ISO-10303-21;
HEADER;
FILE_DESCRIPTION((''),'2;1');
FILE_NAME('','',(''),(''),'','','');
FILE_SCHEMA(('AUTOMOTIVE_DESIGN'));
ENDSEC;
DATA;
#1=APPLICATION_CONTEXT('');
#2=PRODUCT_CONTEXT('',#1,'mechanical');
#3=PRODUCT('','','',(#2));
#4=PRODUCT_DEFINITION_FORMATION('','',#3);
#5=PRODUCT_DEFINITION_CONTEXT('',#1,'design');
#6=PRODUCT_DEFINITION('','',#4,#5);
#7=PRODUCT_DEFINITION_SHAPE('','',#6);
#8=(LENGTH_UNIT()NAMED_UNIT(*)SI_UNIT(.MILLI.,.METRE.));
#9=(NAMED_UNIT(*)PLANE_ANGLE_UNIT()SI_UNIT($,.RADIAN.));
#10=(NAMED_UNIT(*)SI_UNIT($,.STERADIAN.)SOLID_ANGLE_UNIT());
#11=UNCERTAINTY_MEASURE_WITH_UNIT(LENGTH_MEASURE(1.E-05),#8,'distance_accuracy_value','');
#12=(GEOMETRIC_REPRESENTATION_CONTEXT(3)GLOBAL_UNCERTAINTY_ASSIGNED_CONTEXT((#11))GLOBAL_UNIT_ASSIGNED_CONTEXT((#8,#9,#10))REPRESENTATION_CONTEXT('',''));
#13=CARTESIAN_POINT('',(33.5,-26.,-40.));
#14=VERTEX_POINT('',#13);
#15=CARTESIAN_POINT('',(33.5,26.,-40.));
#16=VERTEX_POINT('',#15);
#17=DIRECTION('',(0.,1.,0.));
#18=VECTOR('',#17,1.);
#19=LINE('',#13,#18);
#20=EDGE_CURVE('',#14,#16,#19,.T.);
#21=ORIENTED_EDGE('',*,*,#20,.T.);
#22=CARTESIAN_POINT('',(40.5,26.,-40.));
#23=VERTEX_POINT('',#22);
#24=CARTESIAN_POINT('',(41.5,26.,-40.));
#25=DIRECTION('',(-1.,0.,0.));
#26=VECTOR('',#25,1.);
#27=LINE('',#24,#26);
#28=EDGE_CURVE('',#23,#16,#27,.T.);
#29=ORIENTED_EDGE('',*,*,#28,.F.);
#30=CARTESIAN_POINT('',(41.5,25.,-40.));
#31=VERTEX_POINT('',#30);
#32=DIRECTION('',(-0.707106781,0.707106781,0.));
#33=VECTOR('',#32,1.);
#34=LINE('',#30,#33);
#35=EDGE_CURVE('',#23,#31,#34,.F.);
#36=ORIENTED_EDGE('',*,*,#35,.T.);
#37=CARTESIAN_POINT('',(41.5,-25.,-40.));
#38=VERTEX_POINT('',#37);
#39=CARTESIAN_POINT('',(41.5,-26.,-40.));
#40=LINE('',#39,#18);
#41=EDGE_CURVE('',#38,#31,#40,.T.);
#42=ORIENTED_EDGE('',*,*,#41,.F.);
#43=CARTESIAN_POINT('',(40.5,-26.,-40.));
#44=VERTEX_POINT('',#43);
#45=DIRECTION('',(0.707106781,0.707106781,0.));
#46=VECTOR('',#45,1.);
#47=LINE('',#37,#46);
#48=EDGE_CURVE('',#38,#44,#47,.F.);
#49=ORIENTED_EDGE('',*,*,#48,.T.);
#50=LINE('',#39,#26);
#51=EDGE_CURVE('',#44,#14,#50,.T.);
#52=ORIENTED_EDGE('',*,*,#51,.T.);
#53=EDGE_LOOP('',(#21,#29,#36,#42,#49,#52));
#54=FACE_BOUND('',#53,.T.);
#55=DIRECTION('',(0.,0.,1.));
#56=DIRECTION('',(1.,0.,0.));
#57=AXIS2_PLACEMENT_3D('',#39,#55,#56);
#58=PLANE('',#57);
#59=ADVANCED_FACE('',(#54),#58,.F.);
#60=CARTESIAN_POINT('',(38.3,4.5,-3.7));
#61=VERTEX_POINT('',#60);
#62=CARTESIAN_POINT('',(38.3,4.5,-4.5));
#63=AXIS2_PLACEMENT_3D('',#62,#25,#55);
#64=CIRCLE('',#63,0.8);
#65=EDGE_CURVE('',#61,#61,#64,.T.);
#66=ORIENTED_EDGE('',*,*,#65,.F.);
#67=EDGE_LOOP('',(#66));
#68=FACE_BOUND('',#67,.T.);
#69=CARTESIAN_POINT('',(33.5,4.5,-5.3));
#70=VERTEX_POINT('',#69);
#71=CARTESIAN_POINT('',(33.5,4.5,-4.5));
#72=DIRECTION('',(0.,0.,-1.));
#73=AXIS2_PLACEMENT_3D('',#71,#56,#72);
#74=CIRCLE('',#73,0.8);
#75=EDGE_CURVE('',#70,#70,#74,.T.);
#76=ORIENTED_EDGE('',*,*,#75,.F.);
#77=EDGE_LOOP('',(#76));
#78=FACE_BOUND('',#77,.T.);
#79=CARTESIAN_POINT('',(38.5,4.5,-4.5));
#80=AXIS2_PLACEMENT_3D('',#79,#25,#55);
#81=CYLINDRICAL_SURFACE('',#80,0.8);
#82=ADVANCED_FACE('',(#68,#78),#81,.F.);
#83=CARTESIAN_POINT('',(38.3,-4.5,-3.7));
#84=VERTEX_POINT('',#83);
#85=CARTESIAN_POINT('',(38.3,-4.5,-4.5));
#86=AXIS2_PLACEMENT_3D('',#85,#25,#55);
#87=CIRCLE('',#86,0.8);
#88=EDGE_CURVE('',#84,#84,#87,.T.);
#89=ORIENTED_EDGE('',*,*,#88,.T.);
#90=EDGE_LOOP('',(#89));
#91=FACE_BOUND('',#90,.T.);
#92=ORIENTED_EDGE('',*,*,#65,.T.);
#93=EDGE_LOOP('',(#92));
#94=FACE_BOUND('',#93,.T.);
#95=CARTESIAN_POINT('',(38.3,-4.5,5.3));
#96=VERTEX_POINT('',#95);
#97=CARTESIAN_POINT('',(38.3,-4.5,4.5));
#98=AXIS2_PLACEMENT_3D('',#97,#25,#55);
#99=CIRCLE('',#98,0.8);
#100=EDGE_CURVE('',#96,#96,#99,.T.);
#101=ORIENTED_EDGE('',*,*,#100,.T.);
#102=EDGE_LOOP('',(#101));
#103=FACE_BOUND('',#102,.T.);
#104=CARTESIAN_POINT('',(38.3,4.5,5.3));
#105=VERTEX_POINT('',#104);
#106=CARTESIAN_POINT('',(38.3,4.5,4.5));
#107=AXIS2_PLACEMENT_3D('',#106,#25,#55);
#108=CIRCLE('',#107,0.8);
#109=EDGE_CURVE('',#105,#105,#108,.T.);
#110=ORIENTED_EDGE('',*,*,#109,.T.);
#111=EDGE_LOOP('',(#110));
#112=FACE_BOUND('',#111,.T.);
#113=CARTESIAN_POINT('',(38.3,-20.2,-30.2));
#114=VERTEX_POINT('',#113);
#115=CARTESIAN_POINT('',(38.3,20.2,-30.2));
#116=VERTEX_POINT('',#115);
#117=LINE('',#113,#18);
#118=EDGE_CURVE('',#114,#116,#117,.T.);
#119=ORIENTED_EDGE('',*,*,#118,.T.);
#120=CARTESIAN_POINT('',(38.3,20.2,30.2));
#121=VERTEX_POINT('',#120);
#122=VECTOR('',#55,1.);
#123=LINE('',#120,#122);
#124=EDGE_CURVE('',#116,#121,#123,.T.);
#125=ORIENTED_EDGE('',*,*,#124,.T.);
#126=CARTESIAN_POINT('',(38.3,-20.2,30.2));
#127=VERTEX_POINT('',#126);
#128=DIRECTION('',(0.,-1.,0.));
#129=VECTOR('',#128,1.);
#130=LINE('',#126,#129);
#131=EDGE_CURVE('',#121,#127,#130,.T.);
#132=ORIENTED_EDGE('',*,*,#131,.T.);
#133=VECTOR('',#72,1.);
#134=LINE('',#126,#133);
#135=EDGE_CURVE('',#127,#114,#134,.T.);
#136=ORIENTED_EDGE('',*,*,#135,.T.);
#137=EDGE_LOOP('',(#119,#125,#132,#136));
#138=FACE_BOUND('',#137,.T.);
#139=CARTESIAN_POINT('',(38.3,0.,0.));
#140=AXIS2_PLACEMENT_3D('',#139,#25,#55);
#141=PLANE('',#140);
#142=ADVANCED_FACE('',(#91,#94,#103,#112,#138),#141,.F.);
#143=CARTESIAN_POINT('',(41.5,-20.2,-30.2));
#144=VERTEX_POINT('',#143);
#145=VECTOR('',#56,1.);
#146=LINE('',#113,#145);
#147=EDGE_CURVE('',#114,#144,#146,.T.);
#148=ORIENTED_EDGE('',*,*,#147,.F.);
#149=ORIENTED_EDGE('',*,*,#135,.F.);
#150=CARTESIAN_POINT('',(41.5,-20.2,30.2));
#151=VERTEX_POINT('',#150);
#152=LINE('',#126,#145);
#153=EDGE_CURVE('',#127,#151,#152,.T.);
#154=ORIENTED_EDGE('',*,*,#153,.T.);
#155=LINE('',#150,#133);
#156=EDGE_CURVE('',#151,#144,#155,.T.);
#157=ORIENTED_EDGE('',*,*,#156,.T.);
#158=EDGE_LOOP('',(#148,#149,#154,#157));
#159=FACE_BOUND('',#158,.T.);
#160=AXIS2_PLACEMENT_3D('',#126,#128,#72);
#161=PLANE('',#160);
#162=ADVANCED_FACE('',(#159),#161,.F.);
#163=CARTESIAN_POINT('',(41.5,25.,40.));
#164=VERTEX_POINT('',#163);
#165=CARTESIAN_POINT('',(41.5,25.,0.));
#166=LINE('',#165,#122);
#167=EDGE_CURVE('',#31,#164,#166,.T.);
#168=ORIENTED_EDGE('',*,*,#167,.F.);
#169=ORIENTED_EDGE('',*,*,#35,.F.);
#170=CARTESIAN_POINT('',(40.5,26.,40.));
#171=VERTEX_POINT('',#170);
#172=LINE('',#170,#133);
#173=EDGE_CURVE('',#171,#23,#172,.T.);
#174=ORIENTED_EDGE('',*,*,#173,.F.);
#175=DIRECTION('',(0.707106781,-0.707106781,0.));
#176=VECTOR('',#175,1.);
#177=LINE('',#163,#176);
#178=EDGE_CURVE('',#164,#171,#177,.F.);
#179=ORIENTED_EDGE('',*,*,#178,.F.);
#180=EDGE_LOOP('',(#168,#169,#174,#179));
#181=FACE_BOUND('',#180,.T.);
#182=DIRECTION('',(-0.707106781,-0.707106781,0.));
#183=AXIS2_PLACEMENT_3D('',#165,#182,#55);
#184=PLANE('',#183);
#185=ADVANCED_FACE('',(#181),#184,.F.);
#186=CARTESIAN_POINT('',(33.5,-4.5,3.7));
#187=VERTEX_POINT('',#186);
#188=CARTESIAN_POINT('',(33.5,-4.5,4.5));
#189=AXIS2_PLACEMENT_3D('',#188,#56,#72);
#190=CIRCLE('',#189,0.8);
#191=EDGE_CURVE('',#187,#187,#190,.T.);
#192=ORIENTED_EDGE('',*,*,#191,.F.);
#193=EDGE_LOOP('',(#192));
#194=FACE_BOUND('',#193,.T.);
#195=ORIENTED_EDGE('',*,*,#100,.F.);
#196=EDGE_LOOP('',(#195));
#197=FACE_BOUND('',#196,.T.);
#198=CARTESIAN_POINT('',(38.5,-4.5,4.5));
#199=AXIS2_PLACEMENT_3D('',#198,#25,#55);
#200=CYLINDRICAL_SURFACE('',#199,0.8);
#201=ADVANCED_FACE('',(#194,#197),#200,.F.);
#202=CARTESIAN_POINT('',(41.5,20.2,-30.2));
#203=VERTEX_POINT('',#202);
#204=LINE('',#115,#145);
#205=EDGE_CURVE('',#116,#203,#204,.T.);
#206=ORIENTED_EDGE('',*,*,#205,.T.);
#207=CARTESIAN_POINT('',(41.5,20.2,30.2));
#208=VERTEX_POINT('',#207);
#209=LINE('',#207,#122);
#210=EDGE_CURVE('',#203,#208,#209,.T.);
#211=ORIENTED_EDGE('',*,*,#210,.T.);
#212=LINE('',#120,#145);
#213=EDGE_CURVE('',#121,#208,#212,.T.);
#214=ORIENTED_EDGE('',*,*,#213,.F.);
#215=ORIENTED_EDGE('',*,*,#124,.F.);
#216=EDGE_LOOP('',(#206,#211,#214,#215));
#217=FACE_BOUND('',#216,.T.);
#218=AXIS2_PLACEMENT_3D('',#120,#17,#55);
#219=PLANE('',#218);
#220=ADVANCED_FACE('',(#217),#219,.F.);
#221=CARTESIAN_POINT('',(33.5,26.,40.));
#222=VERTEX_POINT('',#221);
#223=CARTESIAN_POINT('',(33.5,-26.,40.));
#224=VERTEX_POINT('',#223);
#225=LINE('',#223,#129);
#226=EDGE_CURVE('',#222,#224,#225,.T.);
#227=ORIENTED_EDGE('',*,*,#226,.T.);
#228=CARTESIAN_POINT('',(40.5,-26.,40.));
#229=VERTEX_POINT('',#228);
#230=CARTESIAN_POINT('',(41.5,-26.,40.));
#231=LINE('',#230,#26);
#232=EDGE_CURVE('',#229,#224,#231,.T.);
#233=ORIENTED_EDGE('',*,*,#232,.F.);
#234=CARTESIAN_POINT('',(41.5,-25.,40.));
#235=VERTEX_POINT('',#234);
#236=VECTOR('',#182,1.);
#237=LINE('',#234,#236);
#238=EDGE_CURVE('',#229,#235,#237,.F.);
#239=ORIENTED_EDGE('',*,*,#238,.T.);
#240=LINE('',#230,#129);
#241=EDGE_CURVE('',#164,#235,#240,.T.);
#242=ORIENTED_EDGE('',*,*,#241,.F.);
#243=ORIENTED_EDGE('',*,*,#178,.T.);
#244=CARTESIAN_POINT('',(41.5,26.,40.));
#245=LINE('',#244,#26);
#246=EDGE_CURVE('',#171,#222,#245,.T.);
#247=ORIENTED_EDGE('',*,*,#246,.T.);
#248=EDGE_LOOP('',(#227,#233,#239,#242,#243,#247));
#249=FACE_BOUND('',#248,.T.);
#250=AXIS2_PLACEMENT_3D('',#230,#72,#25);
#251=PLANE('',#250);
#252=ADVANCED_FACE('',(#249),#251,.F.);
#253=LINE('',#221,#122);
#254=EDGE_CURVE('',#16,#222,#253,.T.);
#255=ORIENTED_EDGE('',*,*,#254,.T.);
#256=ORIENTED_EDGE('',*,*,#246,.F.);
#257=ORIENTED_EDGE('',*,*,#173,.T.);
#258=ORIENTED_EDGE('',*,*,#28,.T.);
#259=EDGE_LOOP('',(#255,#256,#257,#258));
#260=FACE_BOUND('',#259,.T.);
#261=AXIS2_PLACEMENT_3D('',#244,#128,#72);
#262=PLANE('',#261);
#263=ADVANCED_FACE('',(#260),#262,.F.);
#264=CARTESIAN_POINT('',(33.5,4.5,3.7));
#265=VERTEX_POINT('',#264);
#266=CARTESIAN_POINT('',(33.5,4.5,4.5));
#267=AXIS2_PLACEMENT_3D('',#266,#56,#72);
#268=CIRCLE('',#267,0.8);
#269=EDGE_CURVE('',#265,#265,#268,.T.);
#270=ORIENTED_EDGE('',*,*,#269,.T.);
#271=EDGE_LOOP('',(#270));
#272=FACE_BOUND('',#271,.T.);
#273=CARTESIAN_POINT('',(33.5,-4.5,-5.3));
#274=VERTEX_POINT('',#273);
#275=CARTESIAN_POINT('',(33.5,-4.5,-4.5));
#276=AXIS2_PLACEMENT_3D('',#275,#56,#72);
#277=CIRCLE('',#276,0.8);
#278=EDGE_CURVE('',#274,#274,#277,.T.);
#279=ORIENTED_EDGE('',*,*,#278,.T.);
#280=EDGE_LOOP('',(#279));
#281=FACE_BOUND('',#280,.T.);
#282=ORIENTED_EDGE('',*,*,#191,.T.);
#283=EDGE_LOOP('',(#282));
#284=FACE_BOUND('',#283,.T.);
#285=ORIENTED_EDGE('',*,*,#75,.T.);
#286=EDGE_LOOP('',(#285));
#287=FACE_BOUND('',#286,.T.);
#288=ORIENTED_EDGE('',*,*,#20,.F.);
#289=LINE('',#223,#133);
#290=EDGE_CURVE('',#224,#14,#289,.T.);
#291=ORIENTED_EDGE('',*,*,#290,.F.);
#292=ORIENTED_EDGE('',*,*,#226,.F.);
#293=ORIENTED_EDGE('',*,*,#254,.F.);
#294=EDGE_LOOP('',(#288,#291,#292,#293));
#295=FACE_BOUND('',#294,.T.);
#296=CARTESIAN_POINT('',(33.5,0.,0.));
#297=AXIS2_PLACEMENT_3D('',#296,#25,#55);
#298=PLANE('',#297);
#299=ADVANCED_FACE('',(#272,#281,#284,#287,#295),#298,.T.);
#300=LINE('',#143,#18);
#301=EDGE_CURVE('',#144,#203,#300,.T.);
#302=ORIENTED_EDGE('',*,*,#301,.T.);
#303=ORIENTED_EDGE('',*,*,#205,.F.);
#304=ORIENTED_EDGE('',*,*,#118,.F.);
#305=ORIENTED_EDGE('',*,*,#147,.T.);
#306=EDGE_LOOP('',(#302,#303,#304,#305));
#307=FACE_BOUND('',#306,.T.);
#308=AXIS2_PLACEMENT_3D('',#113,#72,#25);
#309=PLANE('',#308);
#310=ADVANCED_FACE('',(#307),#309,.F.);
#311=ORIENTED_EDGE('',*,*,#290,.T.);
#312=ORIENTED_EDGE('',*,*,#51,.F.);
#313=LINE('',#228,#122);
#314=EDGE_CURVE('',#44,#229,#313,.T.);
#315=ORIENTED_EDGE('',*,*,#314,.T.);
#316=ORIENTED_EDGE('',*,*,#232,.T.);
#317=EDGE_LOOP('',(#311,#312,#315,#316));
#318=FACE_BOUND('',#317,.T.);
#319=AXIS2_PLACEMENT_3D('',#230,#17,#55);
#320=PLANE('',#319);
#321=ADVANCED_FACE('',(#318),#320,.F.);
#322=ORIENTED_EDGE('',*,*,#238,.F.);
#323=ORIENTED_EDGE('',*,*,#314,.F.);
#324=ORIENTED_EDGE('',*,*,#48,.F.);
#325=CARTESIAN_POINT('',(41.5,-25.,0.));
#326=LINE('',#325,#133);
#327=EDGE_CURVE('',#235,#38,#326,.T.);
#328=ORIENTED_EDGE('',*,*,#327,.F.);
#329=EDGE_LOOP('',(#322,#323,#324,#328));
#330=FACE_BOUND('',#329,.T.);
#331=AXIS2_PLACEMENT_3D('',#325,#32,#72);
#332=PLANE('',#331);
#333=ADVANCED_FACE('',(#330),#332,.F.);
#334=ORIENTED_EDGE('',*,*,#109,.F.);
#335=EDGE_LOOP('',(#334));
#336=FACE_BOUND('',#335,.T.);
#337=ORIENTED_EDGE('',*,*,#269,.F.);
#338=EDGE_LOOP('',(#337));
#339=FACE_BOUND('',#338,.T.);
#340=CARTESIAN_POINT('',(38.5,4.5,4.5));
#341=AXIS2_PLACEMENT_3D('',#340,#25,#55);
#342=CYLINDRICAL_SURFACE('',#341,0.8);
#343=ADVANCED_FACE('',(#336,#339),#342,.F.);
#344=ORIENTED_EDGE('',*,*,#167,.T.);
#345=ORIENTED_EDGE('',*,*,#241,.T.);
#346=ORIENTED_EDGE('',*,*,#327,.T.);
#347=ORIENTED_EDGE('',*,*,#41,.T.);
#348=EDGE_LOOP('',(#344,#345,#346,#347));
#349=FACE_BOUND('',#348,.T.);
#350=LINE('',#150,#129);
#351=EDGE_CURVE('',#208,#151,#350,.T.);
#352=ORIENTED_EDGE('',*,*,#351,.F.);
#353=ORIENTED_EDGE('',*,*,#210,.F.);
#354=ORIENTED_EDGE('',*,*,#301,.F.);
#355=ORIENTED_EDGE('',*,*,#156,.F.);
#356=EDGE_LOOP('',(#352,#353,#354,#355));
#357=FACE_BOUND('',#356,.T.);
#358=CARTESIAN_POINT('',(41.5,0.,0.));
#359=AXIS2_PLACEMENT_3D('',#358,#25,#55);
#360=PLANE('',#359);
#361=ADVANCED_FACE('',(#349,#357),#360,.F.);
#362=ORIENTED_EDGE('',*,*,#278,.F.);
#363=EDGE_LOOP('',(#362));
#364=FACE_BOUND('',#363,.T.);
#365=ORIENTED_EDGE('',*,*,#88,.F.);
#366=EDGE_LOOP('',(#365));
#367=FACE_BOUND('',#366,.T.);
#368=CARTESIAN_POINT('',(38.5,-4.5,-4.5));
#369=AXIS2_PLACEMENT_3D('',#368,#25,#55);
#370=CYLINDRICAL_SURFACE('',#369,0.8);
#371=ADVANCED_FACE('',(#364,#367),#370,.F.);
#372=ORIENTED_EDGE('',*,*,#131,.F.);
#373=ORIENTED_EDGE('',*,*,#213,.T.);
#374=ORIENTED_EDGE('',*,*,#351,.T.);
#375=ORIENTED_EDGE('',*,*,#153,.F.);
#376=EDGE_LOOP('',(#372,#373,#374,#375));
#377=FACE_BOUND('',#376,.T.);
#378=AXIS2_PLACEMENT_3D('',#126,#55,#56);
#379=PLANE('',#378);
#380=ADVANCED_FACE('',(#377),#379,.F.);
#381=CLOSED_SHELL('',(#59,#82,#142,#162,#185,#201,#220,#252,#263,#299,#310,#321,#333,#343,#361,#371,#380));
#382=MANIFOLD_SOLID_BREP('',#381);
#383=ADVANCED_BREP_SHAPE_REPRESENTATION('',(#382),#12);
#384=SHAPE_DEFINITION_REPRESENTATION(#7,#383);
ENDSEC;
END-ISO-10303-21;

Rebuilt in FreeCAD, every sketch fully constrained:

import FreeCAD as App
import Part
import Sketcher
from FreeCAD import Vector
Q = App.Units.Quantity


def edges_at(feature, points):
    """Names of the edges that pass closest to the given points."""
    edges = feature.Shape.Edges
    near = lambda p: min(range(len(edges)), key=lambda i: edges[i].distToShape(Part.Vertex(*p))[0])
    return sorted({f"Edge{near(p) + 1}" for p in points})

doc = App.newDocument("Part")
body = doc.addObject("PartDesign::Body", "Body")

# Sketch on YZ plane
sketch1 = body.newObject("Sketcher::SketchObject", "Sketch")
sketch1.AttachmentSupport = (doc.getObject("YZ_Plane"), [""])
sketch1.MapMode = "FlatFace"
sketch1.AttachmentOffset = App.Placement(Vector(0, 0, 33.5), App.Rotation())
sketch1.addGeometry(Part.LineSegment(Vector(26, 40, 0), Vector(-26, 40, 0)), False)
sketch1.addGeometry(Part.LineSegment(Vector(-26, 40, 0), Vector(-26, -40, 0)), False)
sketch1.addGeometry(Part.LineSegment(Vector(-26, -40, 0), Vector(26, -40, 0)), False)
sketch1.addGeometry(Part.LineSegment(Vector(26, -40, 0), Vector(26, 40, 0)), False)
sketch1.addConstraint(Sketcher.Constraint("Coincident", 0, 2, 1, 1))
sketch1.addConstraint(Sketcher.Constraint("Coincident", 1, 2, 2, 1))
sketch1.addConstraint(Sketcher.Constraint("Coincident", 2, 2, 3, 1))
sketch1.addConstraint(Sketcher.Constraint("Coincident", 3, 2, 0, 1))
sketch1.addConstraint(Sketcher.Constraint("Horizontal", 0))
sketch1.addConstraint(Sketcher.Constraint("Vertical", 1))
sketch1.addConstraint(Sketcher.Constraint("Horizontal", 2))
sketch1.addConstraint(Sketcher.Constraint("Vertical", 3))
sketch1.addConstraint(Sketcher.Constraint("Symmetric", 0, 2, 2, 2, -1, 1))
sketch1.addConstraint(Sketcher.Constraint("DistanceX", 0, 2, 0, 1, Q("52 mm")))
sketch1.addConstraint(Sketcher.Constraint("DistanceY", 1, 2, 1, 1, Q("80 mm")))
pad1 = body.newObject("PartDesign::Pad", "Pad")
pad1.Profile = sketch1
pad1.Length = 8

# Sketch on YZ plane
sketch2 = body.newObject("Sketcher::SketchObject", "Sketch001")
sketch2.AttachmentSupport = (doc.getObject("YZ_Plane"), [""])
sketch2.MapMode = "FlatFace"
sketch2.AttachmentOffset = App.Placement(Vector(0, 0, 33.5), App.Rotation())
sketch2.addGeometry(Part.Circle(Vector(-4.5, 4.5, 0), Vector(0, 0, 1), 0.8), False)
sketch2.addGeometry(Part.Circle(Vector(-4.5, -4.5, 0), Vector(0, 0, 1), 0.8), False)
sketch2.addGeometry(Part.Circle(Vector(4.5, 4.5, 0), Vector(0, 0, 1), 0.8), False)
sketch2.addGeometry(Part.Circle(Vector(4.5, -4.5, 0), Vector(0, 0, 1), 0.8), False)
sketch2.addConstraint(Sketcher.Constraint("Equal", 0, 1))
sketch2.addConstraint(Sketcher.Constraint("Equal", 1, 2))
sketch2.addConstraint(Sketcher.Constraint("Equal", 2, 3))
sketch2.addConstraint(Sketcher.Constraint("Symmetric", 1, 3, 2, 3, -1, 1))
sketch2.addConstraint(Sketcher.Constraint("Symmetric", 0, 3, 3, 3, -1, 1))
sketch2.addConstraint(Sketcher.Constraint("Symmetric", 0, 3, 2, 3, -2))
sketch2.addConstraint(Sketcher.Constraint("Diameter", 0, Q("1.6 mm")))
sketch2.addConstraint(Sketcher.Constraint("DistanceY", 1, 3, 0, 3, Q("9 mm")))
sketch2.addConstraint(Sketcher.Constraint("DistanceX", 0, 3, 2, 3, Q("9 mm")))
pocket1 = body.newObject("PartDesign::Pocket", "Pocket")
pocket1.Profile = sketch2
pocket1.Length = 5
pocket1.Reversed = True

# Sketch on YZ plane
sketch3 = body.newObject("Sketcher::SketchObject", "Sketch002")
sketch3.AttachmentSupport = (doc.getObject("YZ_Plane"), [""])
sketch3.MapMode = "FlatFace"
sketch3.AttachmentOffset = App.Placement(Vector(0, 0, 41.5), App.Rotation())
sketch3.addGeometry(Part.LineSegment(Vector(20, 30, 0), Vector(-20, 30, 0)), False)
sketch3.addGeometry(Part.LineSegment(Vector(-20, 30, 0), Vector(-20, -30, 0)), False)
sketch3.addGeometry(Part.LineSegment(Vector(-20, -30, 0), Vector(20, -30, 0)), False)
sketch3.addGeometry(Part.LineSegment(Vector(20, -30, 0), Vector(20, 30, 0)), False)
sketch3.addConstraint(Sketcher.Constraint("Coincident", 0, 2, 1, 1))
sketch3.addConstraint(Sketcher.Constraint("Coincident", 1, 2, 2, 1))
sketch3.addConstraint(Sketcher.Constraint("Coincident", 2, 2, 3, 1))
sketch3.addConstraint(Sketcher.Constraint("Coincident", 3, 2, 0, 1))
sketch3.addConstraint(Sketcher.Constraint("Horizontal", 0))
sketch3.addConstraint(Sketcher.Constraint("Vertical", 1))
sketch3.addConstraint(Sketcher.Constraint("Horizontal", 2))
sketch3.addConstraint(Sketcher.Constraint("Vertical", 3))
sketch3.addConstraint(Sketcher.Constraint("Symmetric", 0, 2, 2, 2, -1, 1))
sketch3.addConstraint(Sketcher.Constraint("DistanceX", 0, 2, 0, 1, Q("40.4 mm")))
sketch3.addConstraint(Sketcher.Constraint("DistanceY", 1, 2, 1, 1, Q("60.4 mm")))
pocket2 = body.newObject("PartDesign::Pocket", "Pocket001")
pocket2.Profile = sketch3
pocket2.Length = 3.2
doc.recompute()

chamfer = body.newObject("PartDesign::Chamfer", "Chamfer")
chamfer.Base = (pocket2, edges_at(pocket2, [(41.5, 26, 0), (41.5, -26, 0)]))
chamfer.Size = 1

doc.recompute()
